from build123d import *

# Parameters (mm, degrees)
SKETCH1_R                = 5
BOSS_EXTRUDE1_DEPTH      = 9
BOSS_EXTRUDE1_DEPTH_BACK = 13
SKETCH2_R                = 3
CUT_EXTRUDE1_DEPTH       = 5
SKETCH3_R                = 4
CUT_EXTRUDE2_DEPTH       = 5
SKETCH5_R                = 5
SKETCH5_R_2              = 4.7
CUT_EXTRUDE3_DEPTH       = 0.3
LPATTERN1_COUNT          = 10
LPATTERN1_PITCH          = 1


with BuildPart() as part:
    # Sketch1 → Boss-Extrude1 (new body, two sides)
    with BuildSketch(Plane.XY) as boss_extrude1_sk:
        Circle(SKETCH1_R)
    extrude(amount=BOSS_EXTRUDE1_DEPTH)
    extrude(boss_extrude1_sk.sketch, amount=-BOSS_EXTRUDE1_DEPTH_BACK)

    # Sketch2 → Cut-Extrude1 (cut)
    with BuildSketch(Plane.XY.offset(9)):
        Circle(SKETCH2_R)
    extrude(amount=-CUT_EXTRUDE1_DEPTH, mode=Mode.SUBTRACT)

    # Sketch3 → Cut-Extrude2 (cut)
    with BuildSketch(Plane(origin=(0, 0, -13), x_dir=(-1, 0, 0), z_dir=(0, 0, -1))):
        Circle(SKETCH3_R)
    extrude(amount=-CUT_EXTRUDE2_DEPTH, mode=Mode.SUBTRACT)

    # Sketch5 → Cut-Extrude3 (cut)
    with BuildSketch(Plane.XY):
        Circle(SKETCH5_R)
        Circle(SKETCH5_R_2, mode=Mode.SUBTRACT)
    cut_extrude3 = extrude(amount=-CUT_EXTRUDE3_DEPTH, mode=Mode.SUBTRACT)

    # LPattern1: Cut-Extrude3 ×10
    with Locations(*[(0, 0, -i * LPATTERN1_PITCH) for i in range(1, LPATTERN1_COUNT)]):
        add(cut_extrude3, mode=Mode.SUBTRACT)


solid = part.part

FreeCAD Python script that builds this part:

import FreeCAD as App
import Part
import Sketcher
Q = App.Units.Quantity

doc = App.newDocument("Part")
body = doc.addObject("PartDesign::Body", "Body")

sketch1 = body.newObject("Sketcher::SketchObject", "Sketch")
sketch1.AttachmentSupport = (doc.getObject("XY_Plane"), [""])
sketch1.MapMode = "FlatFace"
sketch1.addGeometry(Part.Circle(App.Vector(0, 0, 0), App.Vector(0, 0, 1), 5), False)
sketch1.addConstraint(Sketcher.Constraint("Coincident", 0, 3, -1, 1))
sketch1.addConstraint(Sketcher.Constraint("Diameter", 0, Q("10 mm")))
pad1 = body.newObject("PartDesign::Pad", "Pad")
pad1.Profile = sketch1
pad1.Type = "TwoLengths"
pad1.Length = 9
pad1.Length2 = 13

sketch2 = body.newObject("Sketcher::SketchObject", "Sketch001")
sketch2.AttachmentSupport = (doc.getObject("XY_Plane"), [""])
sketch2.MapMode = "FlatFace"
sketch2.AttachmentOffset = App.Placement(App.Vector(0, 0, 9), App.Rotation())
sketch2.addGeometry(Part.Circle(App.Vector(0, 0, 0), App.Vector(0, 0, 1), 3), False)
sketch2.addConstraint(Sketcher.Constraint("Coincident", 0, 3, -1, 1))
sketch2.addConstraint(Sketcher.Constraint("Diameter", 0, Q("6 mm")))
pocket1 = body.newObject("PartDesign::Pocket", "Pocket")
pocket1.Profile = sketch2
pocket1.Length = 5

sketch3 = body.newObject("Sketcher::SketchObject", "Sketch002")
sketch3.AttachmentSupport = (doc.getObject("XY_Plane"), [""])
sketch3.MapMode = "FlatFace"
sketch3.AttachmentOffset = App.Placement(App.Vector(0, 0, -13), App.Rotation())
sketch3.addGeometry(Part.Circle(App.Vector(0, 0, 0), App.Vector(0, 0, 1), 4), False)
sketch3.addConstraint(Sketcher.Constraint("Coincident", 0, 3, -1, 1))
sketch3.addConstraint(Sketcher.Constraint("Diameter", 0, Q("8 mm")))
pocket2 = body.newObject("PartDesign::Pocket", "Pocket001")
pocket2.Profile = sketch3
pocket2.Length = 5
pocket2.Reversed = True

sketch4 = body.newObject("Sketcher::SketchObject", "Sketch003")
sketch4.AttachmentSupport = (doc.getObject("XY_Plane"), [""])
sketch4.MapMode = "FlatFace"
sketch4.addGeometry(Part.Circle(App.Vector(0, 0, 0), App.Vector(0, 0, 1), 5), False)
sketch4.addGeometry(Part.Circle(App.Vector(0, 0, 0), App.Vector(0, 0, 1), 4.7), False)
sketch4.addConstraint(Sketcher.Constraint("Coincident", 0, 3, -1, 1))
sketch4.addConstraint(Sketcher.Constraint("Coincident", 1, 3, -1, 1))
sketch4.addConstraint(Sketcher.Constraint("Diameter", 0, Q("10 mm")))
sketch4.addConstraint(Sketcher.Constraint("Diameter", 1, Q("9.4 mm")))
pocket3 = body.newObject("PartDesign::Pocket", "Pocket002")
pocket3.Profile = sketch4
pocket3.Length = 0.3
doc.recompute()

linearpattern = body.newObject("PartDesign::LinearPattern", "LinearPattern")
linearpattern.Originals = [pocket3]
linearpattern.Direction = (doc.getObject("Z_Axis"), [""])
linearpattern.Mode = "offset"
linearpattern.Offset = 1
linearpattern.Occurrences = 10
linearpattern.Reversed = True
body.Tip = linearpattern

doc.recompute()
